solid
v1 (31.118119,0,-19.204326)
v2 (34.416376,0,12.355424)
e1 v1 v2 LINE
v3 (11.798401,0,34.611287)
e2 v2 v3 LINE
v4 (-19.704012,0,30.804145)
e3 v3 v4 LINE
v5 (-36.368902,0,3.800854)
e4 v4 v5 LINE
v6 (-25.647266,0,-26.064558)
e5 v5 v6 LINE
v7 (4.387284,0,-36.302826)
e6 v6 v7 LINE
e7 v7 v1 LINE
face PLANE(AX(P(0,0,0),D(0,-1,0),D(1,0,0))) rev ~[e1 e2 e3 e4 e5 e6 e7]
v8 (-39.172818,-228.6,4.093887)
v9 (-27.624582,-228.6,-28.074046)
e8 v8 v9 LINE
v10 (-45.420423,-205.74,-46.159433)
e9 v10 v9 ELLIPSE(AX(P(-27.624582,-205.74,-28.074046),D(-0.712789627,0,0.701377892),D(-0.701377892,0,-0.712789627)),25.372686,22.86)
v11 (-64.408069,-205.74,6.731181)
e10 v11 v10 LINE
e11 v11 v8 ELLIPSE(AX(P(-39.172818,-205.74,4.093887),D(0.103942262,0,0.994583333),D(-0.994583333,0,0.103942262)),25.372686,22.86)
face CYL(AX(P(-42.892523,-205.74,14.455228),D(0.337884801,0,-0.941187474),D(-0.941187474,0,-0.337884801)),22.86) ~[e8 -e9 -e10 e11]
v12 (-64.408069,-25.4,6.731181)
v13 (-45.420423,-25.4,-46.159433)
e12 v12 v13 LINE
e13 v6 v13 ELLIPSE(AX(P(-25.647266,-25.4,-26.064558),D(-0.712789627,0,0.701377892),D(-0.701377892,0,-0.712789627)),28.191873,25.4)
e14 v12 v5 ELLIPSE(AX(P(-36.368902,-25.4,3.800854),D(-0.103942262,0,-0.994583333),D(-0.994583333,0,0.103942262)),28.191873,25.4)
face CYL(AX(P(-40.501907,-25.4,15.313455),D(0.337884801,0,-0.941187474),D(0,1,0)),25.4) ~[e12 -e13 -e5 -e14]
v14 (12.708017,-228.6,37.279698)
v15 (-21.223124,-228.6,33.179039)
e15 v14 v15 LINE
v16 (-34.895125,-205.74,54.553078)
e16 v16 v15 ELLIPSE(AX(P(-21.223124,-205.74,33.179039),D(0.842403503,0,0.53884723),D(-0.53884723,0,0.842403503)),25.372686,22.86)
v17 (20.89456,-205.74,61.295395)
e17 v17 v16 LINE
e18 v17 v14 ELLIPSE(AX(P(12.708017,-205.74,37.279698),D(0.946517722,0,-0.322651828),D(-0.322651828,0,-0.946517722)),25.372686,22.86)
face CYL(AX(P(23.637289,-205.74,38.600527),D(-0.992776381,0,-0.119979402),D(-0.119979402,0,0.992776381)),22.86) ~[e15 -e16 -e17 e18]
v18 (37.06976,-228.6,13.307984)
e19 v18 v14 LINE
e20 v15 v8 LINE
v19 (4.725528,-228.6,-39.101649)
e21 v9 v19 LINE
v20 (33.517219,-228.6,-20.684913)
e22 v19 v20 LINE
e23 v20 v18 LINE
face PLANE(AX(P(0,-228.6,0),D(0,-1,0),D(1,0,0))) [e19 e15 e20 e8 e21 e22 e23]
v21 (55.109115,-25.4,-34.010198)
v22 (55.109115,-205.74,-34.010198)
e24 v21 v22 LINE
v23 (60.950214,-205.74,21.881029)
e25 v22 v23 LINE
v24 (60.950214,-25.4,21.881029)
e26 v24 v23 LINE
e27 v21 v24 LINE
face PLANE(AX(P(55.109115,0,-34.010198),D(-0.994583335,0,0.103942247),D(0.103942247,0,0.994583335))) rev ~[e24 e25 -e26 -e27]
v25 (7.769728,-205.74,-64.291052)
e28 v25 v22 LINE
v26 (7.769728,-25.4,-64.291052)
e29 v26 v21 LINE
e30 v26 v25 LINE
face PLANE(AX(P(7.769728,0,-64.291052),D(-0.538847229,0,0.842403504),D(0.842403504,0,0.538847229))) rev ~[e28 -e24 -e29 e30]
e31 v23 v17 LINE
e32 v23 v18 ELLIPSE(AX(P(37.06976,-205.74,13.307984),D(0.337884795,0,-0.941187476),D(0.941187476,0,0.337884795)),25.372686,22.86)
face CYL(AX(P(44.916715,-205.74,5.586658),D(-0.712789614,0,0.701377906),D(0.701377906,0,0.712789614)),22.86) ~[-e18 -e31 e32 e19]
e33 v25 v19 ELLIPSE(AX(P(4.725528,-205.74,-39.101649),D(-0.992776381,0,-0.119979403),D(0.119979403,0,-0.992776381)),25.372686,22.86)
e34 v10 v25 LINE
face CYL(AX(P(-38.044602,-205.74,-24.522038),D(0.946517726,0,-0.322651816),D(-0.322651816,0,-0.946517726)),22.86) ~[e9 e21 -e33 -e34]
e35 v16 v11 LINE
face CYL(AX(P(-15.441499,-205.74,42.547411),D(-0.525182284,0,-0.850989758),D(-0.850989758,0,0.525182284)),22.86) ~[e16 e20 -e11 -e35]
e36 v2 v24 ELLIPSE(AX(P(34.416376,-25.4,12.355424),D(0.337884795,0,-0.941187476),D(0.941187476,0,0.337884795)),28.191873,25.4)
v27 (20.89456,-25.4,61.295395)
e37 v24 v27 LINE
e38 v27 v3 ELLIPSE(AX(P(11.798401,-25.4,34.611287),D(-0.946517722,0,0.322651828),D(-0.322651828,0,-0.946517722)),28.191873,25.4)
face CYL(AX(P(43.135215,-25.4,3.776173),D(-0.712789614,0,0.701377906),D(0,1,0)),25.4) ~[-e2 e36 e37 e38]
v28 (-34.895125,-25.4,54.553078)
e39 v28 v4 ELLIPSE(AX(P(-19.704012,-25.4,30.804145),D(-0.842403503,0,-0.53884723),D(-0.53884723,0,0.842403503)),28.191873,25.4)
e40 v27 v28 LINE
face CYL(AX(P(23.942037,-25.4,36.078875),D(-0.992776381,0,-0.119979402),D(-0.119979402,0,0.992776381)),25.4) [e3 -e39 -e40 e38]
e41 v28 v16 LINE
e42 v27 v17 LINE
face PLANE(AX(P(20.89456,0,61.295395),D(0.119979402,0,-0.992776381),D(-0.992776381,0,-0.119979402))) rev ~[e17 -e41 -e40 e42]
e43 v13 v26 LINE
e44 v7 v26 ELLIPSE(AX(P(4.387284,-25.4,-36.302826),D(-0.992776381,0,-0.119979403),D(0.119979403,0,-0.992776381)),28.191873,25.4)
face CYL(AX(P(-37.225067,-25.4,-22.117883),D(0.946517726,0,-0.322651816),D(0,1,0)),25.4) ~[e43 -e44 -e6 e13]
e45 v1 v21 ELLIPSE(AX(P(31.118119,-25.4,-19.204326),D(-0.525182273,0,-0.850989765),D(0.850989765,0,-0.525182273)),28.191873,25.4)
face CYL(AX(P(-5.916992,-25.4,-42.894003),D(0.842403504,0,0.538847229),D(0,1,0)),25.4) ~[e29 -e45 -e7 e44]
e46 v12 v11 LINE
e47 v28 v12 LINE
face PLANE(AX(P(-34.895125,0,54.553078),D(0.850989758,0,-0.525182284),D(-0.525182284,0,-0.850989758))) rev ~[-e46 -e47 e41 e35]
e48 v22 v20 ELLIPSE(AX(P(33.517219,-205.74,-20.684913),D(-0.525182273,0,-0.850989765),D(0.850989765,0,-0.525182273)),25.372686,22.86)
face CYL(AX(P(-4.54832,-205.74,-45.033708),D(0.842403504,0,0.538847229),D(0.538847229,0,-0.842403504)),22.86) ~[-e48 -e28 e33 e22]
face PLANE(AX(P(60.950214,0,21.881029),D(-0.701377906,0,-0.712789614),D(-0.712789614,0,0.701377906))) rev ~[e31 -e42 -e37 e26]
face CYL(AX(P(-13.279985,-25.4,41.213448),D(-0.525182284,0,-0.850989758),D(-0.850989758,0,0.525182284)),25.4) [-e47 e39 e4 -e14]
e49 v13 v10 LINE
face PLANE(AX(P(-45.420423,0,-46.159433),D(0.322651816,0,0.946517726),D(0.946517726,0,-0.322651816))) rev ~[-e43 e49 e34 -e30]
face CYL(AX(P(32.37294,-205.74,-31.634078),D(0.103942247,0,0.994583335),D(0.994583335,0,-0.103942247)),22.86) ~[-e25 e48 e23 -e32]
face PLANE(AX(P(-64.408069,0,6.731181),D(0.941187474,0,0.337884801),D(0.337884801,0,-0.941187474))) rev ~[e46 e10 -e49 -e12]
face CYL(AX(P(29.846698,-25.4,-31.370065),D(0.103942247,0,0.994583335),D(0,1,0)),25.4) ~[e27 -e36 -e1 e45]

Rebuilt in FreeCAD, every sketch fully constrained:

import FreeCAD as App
import Part
import Sketcher
from FreeCAD import Vector
Q = App.Units.Quantity


def edges_at(feature, points):
    """Names of the edges that pass closest to the given points."""
    edges = feature.Shape.Edges
    near = lambda p: min(range(len(edges)), key=lambda i: edges[i].distToShape(Part.Vertex(*p))[0])
    return sorted({f"Edge{near(p) + 1}" for p in points})


def add_polygon(sketch, points):
    """Adds a closed chain of lines whose ends are joined by coincident constraints."""
    first, n = sketch.GeometryCount, len(points)
    for a, b in zip(points, points[1:] + points[:1]):
        sketch.addGeometry(Part.LineSegment(App.Vector(*a, 0), App.Vector(*b, 0)), False)
    for i in range(n):
        sketch.addConstraint(Sketcher.Constraint("Coincident", first + i, 2, first + (i + 1) % n, 1))

doc = App.newDocument("Part")
params = doc.addObject("Spreadsheet::Sheet", "Params")
for row, (alias, value) in enumerate([
    ("pad1_length", "9 in"),
    ("fillet_radius", "0.9 in"),
    ("fillet2_radius", "1 in"),
], start=1):
    params.set(f"A{row}", alias)
    params.set(f"B{row}", "=" + value)
    params.setAlias(f"B{row}", alias)

body = doc.addObject("PartDesign::Body", "Body")

sketch1 = body.newObject("Sketcher::SketchObject", "Sketch")
sketch1.AttachmentSupport = (doc.getObject("XZ_Plane"), [""])
sketch1.MapMode = "FlatFace"
add_polygon(sketch1, [(-35, 55), (-64, 7), (-45, -46), (8, -64), (55, -34), (61, 22), (21, 61)])
sketch1.addConstraint([
    Sketcher.Constraint("Equal", 0, 1),
    Sketcher.Constraint("Equal", 1, 2),
    Sketcher.Constraint("Equal", 2, 3),
    Sketcher.Constraint("Equal", 3, 4),
    Sketcher.Constraint("Equal", 4, 5),
    Sketcher.Constraint("Equal", 5, 6),
    Sketcher.Constraint("DistanceY", 3, 2, -1, 1, Q("34.010198 mm")),
    Sketcher.Constraint("DistanceX", 3, 2, 4, 2, Q("5.841099 mm")),
    Sketcher.Constraint("Distance", 0, Q("56.19562 mm")),
    Sketcher.Constraint("DistanceX", 0, 2, -1, 1, Q("64.408069 mm")),
    Sketcher.Constraint("DistanceY", -1, 1, 0, 2, Q("6.731181 mm")),
    Sketcher.Constraint("DistanceY", 2, 2, -1, 1, Q("64.291052 mm")),
    Sketcher.Constraint("DistanceX", -1, 1, 5, 2, Q("20.89456 mm")),
    Sketcher.Constraint("DistanceX", 1, 2, 2, 2, Q("53.190151 mm")),
])
pad1 = body.newObject("PartDesign::Pad", "Pad")
pad1.Profile = sketch1
pad1.setExpression("Length", "Params.pad1_length")
doc.recompute()

fillet = body.newObject("PartDesign::Fillet", "Fillet")
fillet.Base = (pad1, edges_at(pad1, [
    (-7, -228.6, 57.924),
    (-49.652, -228.6, 30.642),
    (-54.914, -228.6, -19.714),
    (-18.825, -228.6, -55.225),
    (31.439, -228.6, -49.151),
    (58.03, -228.6, -6.065),
    (40.922, -228.6, 41.588),
]))
fillet.setExpression("Radius", "Params.fillet_radius")
doc.recompute()

fillet2 = body.newObject("PartDesign::Fillet", "Fillet001")
fillet2.Base = (fillet, edges_at(fillet, [
    (-7, 0, 57.924),
    (-49.652, 0, 30.642),
    (-54.914, 0, -19.714),
    (-18.825, 0, -55.225),
    (31.439, 0, -49.151),
    (58.03, 0, -6.065),
    (40.922, 0, 41.588),
]))
fillet2.setExpression("Radius", "Params.fillet2_radius")

doc.recompute()
